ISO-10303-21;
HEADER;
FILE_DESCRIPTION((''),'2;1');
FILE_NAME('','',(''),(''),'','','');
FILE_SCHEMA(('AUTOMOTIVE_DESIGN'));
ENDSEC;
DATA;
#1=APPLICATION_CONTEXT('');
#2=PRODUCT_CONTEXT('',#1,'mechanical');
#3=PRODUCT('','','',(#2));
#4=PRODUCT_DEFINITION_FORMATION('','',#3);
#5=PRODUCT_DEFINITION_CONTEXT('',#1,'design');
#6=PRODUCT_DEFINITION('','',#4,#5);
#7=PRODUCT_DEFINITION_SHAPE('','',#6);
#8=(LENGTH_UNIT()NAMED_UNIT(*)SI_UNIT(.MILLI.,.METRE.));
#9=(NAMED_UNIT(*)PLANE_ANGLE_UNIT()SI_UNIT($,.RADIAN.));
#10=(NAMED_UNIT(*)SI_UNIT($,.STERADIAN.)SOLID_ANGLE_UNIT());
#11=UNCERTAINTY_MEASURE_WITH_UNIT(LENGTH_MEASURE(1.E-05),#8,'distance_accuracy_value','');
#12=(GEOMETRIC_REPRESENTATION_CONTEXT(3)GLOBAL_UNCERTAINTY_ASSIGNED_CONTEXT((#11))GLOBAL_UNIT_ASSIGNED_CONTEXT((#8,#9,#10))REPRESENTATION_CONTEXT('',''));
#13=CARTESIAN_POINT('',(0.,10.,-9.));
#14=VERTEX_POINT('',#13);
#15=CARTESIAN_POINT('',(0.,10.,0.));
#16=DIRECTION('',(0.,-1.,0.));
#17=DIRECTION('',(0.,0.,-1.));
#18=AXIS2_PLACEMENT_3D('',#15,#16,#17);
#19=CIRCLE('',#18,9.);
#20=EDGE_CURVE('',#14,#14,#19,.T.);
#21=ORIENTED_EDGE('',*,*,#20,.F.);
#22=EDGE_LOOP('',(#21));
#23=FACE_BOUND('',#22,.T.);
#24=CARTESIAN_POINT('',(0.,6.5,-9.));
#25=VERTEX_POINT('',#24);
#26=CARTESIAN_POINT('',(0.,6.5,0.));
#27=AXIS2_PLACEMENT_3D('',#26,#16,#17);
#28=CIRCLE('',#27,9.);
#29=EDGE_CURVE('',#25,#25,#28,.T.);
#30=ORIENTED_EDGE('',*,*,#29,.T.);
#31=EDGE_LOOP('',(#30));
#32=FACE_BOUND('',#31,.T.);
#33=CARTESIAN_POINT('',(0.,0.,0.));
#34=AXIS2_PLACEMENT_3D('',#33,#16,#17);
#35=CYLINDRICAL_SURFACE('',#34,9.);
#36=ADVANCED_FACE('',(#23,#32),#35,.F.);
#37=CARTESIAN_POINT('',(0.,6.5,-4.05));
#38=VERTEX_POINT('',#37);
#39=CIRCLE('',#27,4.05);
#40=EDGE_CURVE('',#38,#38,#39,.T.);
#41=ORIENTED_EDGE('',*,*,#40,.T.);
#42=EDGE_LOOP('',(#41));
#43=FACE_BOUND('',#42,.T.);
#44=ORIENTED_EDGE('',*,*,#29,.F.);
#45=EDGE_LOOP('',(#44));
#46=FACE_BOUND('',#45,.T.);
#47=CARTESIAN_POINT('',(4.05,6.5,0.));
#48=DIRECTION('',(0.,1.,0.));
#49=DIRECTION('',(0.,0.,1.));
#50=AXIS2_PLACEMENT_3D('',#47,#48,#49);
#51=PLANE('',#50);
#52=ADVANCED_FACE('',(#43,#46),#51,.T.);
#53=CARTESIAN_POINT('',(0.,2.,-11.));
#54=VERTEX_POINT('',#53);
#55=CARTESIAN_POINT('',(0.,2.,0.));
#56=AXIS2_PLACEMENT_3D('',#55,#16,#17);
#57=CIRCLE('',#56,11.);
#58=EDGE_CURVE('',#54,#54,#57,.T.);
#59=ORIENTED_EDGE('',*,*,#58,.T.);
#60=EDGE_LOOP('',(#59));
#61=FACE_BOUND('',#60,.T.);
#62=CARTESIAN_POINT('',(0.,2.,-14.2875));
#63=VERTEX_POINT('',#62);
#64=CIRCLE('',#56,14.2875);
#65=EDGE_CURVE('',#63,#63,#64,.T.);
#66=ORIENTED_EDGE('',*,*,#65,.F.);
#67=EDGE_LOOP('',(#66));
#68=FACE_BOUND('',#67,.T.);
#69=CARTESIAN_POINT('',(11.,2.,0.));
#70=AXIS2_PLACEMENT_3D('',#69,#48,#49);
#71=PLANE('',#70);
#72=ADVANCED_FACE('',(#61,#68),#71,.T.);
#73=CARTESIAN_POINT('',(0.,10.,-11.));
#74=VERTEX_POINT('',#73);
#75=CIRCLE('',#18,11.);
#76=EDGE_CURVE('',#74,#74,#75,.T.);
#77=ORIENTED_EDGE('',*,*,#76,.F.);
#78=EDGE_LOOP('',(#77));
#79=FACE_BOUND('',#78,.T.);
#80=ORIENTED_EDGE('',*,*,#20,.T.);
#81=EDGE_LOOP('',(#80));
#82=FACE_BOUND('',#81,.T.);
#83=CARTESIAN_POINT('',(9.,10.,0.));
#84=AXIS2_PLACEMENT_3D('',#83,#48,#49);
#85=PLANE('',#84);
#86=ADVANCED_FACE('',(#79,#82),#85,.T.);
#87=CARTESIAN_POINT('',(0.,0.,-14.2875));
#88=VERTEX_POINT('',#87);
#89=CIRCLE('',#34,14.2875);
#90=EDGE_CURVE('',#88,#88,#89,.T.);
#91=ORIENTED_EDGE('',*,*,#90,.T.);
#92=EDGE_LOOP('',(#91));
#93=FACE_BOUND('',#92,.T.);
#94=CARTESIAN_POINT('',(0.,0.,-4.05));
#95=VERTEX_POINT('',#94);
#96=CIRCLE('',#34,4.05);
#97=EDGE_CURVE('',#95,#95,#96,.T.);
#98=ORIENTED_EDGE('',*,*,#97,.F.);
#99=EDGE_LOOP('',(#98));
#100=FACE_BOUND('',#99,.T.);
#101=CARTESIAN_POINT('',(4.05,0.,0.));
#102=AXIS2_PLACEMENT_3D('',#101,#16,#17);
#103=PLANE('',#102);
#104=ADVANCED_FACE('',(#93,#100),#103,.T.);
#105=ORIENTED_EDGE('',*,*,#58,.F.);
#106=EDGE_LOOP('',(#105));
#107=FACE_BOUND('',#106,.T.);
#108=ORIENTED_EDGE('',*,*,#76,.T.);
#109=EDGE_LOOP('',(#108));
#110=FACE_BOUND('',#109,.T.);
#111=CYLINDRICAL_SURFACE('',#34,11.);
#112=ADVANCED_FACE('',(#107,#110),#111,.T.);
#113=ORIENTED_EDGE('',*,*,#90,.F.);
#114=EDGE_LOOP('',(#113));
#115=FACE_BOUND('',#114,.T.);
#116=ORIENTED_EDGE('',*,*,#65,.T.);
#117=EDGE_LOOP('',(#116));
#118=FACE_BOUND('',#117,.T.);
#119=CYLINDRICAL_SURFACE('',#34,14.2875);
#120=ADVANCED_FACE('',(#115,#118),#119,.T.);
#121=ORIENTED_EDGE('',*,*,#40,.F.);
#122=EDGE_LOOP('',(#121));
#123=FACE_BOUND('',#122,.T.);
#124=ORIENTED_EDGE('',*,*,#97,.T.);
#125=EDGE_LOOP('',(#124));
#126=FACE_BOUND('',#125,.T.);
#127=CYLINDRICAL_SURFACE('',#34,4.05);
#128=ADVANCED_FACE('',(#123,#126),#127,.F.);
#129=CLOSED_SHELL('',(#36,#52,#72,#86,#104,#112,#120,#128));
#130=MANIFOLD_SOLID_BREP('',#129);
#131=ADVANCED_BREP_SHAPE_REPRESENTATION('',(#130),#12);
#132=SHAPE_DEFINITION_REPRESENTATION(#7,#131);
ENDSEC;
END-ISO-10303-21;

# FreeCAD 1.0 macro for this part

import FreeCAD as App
import Part
import Sketcher
Q = App.Units.Quantity

doc = App.newDocument("Part")
params = doc.addObject("Spreadsheet::Sheet", "Params")
for row, (alias, value) in enumerate([
    ("sketch1_width", "2 mm"),
    ("sketch1_height", "8 mm"),
    ("sketch1_height2", "6.5 mm"),
    ("sketch1_width2", "4.95 mm"),
    ("revolution_angle", "360 deg"),
], start=1):
    params.set(f"A{row}", alias)
    params.set(f"B{row}", "=" + value)
    params.setAlias(f"B{row}", alias)

body = doc.addObject("PartDesign::Body", "Body")

sketch1 = body.newObject("Sketcher::SketchObject", "Sketch")
sketch1.AttachmentSupport = (doc.getObject("XY_Plane"), [""])
sketch1.MapMode = "FlatFace"
sketch1.addGeometry(Part.LineSegment(App.Vector(4, 6.5, 0), App.Vector(4, 0, 0)), False)
sketch1.addGeometry(Part.LineSegment(App.Vector(4, 0, 0), App.Vector(14.3, 0, 0)), False)
sketch1.addGeometry(Part.LineSegment(App.Vector(14.3, 0, 0), App.Vector(14.3, 2, 0)), False)
sketch1.addGeometry(Part.LineSegment(App.Vector(14.3, 2, 0), App.Vector(11, 2, 0)), False)
sketch1.addGeometry(Part.LineSegment(App.Vector(11, 2, 0), App.Vector(11, 10, 0)), False)
sketch1.addGeometry(Part.LineSegment(App.Vector(11, 10, 0), App.Vector(9, 10, 0)), False)
sketch1.addGeometry(Part.LineSegment(App.Vector(9, 10, 0), App.Vector(9, 6.5, 0)), False)
sketch1.addGeometry(Part.LineSegment(App.Vector(9, 6.5, 0), App.Vector(4, 6.5, 0)), False)
sketch1.addConstraint(Sketcher.Constraint("Coincident", 0, 2, 1, 1))
sketch1.addConstraint(Sketcher.Constraint("Coincident", 1, 2, 2, 1))
sketch1.addConstraint(Sketcher.Constraint("Coincident", 2, 2, 3, 1))
sketch1.addConstraint(Sketcher.Constraint("Coincident", 3, 2, 4, 1))
sketch1.addConstraint(Sketcher.Constraint("Coincident", 4, 2, 5, 1))
sketch1.addConstraint(Sketcher.Constraint("Coincident", 5, 2, 6, 1))
sketch1.addConstraint(Sketcher.Constraint("Coincident", 6, 2, 7, 1))
sketch1.addConstraint(Sketcher.Constraint("Coincident", 7, 2, 0, 1))
sketch1.addConstraint(Sketcher.Constraint("Vertical", 0))
sketch1.addConstraint(Sketcher.Constraint("Horizontal", 1))
sketch1.addConstraint(Sketcher.Constraint("Vertical", 2))
sketch1.addConstraint(Sketcher.Constraint("Horizontal", 3))
sketch1.addConstraint(Sketcher.Constraint("Vertical", 4))
sketch1.addConstraint(Sketcher.Constraint("Horizontal", 5))
sketch1.addConstraint(Sketcher.Constraint("Vertical", 6))
sketch1.addConstraint(Sketcher.Constraint("Horizontal", 7))
sketch1.addConstraint(Sketcher.Constraint("PointOnObject", 0, 2, -1))
sketch1.addConstraint(Sketcher.Constraint("Equal", 5, 2))
sketch1.addConstraint(Sketcher.Constraint("DistanceX", 5, 2, 5, 1, Q("2 mm")))
sketch1.addConstraint(Sketcher.Constraint("DistanceY", 4, 1, 4, 2, Q("8 mm")))
sketch1.addConstraint(Sketcher.Constraint("DistanceY", 0, 2, 0, 1, Q("6.5 mm")))
sketch1.addConstraint(Sketcher.Constraint("DistanceX", -1, 1, 3, 2, Q("11 mm")))
sketch1.addConstraint(Sketcher.Constraint("DistanceX", 7, 2, 7, 1, Q("4.95 mm")))
sketch1.addConstraint(Sketcher.Constraint("DistanceX", 1, 1, 1, 2, Q("10.2375 mm")))
sketch1.setExpression("Constraints[18]", "Params.sketch1_width")
sketch1.setExpression("Constraints[19]", "Params.sketch1_height")
sketch1.setExpression("Constraints[20]", "Params.sketch1_height2")
sketch1.setExpression("Constraints[22]", "Params.sketch1_width2")
revolution = body.newObject("PartDesign::Revolution", "Revolution")
revolution.Profile = sketch1
revolution.ReferenceAxis = (sketch1, ["V_Axis"])
revolution.setExpression("Angle", "Params.revolution_angle")

doc.recompute()
